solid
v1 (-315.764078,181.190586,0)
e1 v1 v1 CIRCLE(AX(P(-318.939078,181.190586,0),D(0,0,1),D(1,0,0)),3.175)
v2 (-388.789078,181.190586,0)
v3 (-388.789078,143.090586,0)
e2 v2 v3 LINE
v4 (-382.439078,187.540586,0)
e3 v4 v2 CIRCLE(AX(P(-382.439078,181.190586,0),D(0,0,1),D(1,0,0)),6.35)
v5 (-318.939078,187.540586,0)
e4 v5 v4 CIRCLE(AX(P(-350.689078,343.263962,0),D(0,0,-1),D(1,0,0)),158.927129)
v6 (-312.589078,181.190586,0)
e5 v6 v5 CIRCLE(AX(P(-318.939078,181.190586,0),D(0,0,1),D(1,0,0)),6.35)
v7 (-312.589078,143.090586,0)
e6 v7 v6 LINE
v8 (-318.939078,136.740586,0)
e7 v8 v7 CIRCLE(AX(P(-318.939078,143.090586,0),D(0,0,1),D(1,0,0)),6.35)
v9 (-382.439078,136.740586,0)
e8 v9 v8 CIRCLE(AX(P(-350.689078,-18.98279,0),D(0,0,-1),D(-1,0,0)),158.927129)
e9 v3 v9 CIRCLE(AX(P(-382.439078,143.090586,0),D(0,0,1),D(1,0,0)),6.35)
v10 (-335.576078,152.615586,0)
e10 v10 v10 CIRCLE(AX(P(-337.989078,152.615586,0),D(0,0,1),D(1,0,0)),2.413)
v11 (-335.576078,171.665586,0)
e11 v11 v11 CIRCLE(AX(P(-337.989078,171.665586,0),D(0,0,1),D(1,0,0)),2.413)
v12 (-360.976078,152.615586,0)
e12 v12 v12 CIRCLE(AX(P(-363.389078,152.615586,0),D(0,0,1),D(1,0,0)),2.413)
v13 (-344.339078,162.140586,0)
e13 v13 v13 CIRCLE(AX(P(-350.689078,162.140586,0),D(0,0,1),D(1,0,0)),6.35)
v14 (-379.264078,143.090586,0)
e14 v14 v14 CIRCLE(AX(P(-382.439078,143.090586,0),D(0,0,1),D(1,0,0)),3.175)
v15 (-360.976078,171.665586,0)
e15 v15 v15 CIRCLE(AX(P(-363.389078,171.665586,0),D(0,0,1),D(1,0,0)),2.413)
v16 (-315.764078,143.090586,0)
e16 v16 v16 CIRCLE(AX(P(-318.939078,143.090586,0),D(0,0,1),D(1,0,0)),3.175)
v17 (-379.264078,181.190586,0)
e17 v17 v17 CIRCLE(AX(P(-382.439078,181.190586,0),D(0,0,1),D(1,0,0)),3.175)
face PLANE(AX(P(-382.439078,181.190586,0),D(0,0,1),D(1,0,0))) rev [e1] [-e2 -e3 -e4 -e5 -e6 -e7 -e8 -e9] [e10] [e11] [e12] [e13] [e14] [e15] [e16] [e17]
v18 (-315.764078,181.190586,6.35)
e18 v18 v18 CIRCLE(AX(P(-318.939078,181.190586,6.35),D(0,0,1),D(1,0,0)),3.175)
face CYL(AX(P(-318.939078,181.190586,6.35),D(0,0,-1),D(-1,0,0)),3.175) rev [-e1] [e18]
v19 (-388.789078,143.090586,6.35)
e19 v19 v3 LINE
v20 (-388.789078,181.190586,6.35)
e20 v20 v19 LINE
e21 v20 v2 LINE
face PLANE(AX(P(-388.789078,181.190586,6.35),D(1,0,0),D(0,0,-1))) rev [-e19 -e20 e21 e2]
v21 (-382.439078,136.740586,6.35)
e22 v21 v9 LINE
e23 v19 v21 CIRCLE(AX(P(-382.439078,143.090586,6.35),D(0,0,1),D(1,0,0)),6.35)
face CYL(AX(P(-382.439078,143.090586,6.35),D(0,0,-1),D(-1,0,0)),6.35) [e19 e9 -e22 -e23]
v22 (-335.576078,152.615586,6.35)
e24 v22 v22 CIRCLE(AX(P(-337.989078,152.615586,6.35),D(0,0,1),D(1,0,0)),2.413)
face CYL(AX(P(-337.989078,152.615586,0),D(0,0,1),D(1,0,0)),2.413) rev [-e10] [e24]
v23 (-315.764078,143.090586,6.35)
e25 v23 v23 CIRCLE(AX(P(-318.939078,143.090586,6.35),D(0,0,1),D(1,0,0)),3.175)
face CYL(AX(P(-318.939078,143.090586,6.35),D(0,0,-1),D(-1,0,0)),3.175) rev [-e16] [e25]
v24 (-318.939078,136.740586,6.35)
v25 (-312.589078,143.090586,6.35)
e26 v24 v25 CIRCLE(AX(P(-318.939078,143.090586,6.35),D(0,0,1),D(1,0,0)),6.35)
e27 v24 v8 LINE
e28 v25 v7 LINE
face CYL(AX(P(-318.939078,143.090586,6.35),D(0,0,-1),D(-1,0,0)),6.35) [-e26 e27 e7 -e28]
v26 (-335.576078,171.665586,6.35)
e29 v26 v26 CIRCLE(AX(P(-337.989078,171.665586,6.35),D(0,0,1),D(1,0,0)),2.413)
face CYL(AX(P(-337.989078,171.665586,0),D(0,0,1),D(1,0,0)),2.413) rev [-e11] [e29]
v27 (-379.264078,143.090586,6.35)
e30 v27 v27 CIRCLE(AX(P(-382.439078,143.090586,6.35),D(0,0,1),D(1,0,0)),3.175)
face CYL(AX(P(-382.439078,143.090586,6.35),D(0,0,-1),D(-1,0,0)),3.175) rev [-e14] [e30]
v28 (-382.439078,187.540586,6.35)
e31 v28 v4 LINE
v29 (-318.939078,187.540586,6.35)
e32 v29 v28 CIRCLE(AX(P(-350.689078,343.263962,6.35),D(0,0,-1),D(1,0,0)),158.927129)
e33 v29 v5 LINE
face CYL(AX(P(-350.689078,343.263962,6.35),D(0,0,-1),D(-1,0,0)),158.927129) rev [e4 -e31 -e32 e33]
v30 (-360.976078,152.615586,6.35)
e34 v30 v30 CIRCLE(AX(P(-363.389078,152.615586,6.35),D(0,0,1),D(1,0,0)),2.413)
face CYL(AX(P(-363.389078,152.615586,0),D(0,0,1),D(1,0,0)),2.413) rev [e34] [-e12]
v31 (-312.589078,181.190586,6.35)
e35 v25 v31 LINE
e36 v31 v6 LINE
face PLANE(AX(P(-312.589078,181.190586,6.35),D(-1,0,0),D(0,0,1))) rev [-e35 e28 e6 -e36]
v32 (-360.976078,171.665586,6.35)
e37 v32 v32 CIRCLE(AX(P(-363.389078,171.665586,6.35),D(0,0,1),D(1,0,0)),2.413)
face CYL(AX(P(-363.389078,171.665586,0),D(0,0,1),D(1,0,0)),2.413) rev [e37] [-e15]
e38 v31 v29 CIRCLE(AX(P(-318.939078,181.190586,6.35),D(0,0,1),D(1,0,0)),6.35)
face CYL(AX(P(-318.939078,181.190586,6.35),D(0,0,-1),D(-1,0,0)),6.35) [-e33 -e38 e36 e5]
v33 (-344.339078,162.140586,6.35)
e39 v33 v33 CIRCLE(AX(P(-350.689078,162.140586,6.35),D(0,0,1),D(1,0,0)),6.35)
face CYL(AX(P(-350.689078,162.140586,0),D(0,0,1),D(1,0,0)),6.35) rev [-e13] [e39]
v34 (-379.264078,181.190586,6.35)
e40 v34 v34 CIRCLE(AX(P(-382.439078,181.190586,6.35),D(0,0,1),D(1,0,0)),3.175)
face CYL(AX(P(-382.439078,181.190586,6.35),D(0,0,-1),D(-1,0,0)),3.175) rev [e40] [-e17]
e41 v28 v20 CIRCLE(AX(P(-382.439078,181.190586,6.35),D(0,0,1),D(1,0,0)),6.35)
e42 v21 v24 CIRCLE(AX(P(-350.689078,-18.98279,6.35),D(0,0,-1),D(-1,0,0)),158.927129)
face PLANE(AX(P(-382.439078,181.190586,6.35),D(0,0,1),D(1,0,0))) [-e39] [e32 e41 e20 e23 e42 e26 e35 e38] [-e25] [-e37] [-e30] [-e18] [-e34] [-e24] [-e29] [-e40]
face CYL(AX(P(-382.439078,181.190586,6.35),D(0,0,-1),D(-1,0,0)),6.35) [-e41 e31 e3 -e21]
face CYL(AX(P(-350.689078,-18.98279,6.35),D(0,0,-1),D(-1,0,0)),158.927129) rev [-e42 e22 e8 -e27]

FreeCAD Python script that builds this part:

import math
import FreeCAD as App
import Part
import Sketcher
Q = App.Units.Quantity

doc = App.newDocument("Part")
body = doc.addObject("PartDesign::Body", "Body")

# Sketch on XY plane
sketch1 = body.newObject("Sketcher::SketchObject", "Sketch")
sketch1.AttachmentSupport = (doc.getObject("XY_Plane"), [""])
sketch1.MapMode = "FlatFace"
sketch1.addGeometry([
    Part.LineSegment(App.Vector(-388.8, 181.2, 0), App.Vector(-388.8, 143.1, 0)),  # 0
    Part.ArcOfCircle(Part.Circle(App.Vector(-382.4, 143.1, 0), App.Vector(0, 0, 1), 6.3), math.radians(180), math.radians(270)),  # 1
    Part.ArcOfCircle(Part.Circle(App.Vector(-350.7, -19, 0), App.Vector(0, 0, 1), 158.9), math.radians(78), math.radians(102)),  # 2
    Part.ArcOfCircle(Part.Circle(App.Vector(-318.9, 143.1, 0), App.Vector(0, 0, 1), 6.3), math.radians(-90), math.radians(0)),  # 3
    Part.LineSegment(App.Vector(-312.6, 143.1, 0), App.Vector(-312.6, 181.2, 0)),  # 4
    Part.ArcOfCircle(Part.Circle(App.Vector(-318.9, 181.2, 0), App.Vector(0, 0, 1), 6.3), math.radians(0), math.radians(90)),  # 5
    Part.ArcOfCircle(Part.Circle(App.Vector(-350.7, 343.3, 0), App.Vector(0, 0, 1), 158.9), math.radians(-102), math.radians(-78)),  # 6
    Part.ArcOfCircle(Part.Circle(App.Vector(-382.4, 181.2, 0), App.Vector(0, 0, 1), 6.4), math.radians(90), math.radians(180)),  # 7
    Part.Circle(App.Vector(-382.4, 143.1, 0), App.Vector(0, 0, 1), 3.2),  # 8
    Part.Circle(App.Vector(-318.9, 143.1, 0), App.Vector(0, 0, 1), 3.2),  # 9
    Part.Circle(App.Vector(-382.4, 181.2, 0), App.Vector(0, 0, 1), 3.2),  # 10
    Part.Circle(App.Vector(-318.9, 181.2, 0), App.Vector(0, 0, 1), 3.2),  # 11
], False)
sketch1.addConstraint([
    Sketcher.Constraint("Tangent", 0, 2, 1, 1),
    Sketcher.Constraint("Coincident", 1, 2, 2, 2),
    Sketcher.Constraint("Coincident", 2, 1, 3, 1),
    Sketcher.Constraint("Tangent", 3, 2, 4, 1),
    Sketcher.Constraint("Tangent", 4, 2, 5, 1),
    Sketcher.Constraint("Coincident", 5, 2, 6, 2),
    Sketcher.Constraint("Coincident", 6, 1, 7, 1),
    Sketcher.Constraint("Tangent", 7, 2, 0, 1),
    Sketcher.Constraint("Vertical", 0),
    Sketcher.Constraint("Vertical", 4),
    Sketcher.Constraint("Coincident", 8, 3, 1, 3),
    Sketcher.Constraint("Coincident", 9, 3, 3, 3),
    Sketcher.Constraint("Coincident", 10, 3, 7, 3),
    Sketcher.Constraint("Coincident", 11, 3, 5, 3),
    Sketcher.Constraint("Equal", 1, 3),
    Sketcher.Constraint("Equal", 3, 5),
    Sketcher.Constraint("Equal", 2, 6),
    Sketcher.Constraint("Equal", 5, 7),
    Sketcher.Constraint("Equal", 8, 9),
    Sketcher.Constraint("Equal", 9, 10),
    Sketcher.Constraint("Equal", 10, 11),
    Sketcher.Constraint("Horizontal", 1, 3, 3, 3),
    Sketcher.Constraint("Horizontal", 5, 3, 7, 3),
    Sketcher.Constraint("Vertical", 2, 3, 6, 3),
    Sketcher.Constraint("Vertical", 10, 3, 1, 2),
    Sketcher.Constraint("Vertical", 11, 3, 2, 1),
    Sketcher.Constraint("Vertical", 2, 1, 5, 2),
    Sketcher.Constraint("Diameter", 8, Q("0.25 in")),
    Sketcher.Constraint("Radius", 1, Q("0.25 in")),
    Sketcher.Constraint("DistanceY", 0, 2, 0, 1, Q("1.5 in")),
    Sketcher.Constraint("DistanceX", 1, 3, 3, 3, Q("2.5 in")),
    Sketcher.Constraint("Radius", 2, 158.927129),
    Sketcher.Constraint("DistanceY", 2, 3, -1, 1, 18.98279),
    Sketcher.Constraint("DistanceX", 1, 3, -1, 1, 382.439078),
])
pad1 = body.newObject("PartDesign::Pad", "Pad")
pad1.Profile = sketch1
pad1.Length = Q("0.25 in")

# Sketch on XY plane
sketch2 = body.newObject("Sketcher::SketchObject", "Sketch001")
sketch2.AttachmentSupport = (doc.getObject("XY_Plane"), [""])
sketch2.MapMode = "FlatFace"
sketch2.AttachmentOffset = App.Placement(App.Vector(0, 0, 0.25 * 25.4), App.Rotation())
sketch2.addGeometry(Part.Circle(App.Vector(-351, 162, 0), App.Vector(0, 0, 1), 6), False)
sketch2.addConstraint([
    Sketcher.Constraint("Diameter", 0, Q("0.5 in")),
    Sketcher.Constraint("DistanceX", 0, 3, -1, 1, 350.689078),
    Sketcher.Constraint("DistanceY", -1, 1, 0, 3, 162.140586),
])
pocket1 = body.newObject("PartDesign::Pocket", "Pocket")
pocket1.Profile = sketch2
pocket1.Length = Q("0.25 in")

# Sketch on XY plane
sketch3 = body.newObject("Sketcher::SketchObject", "Sketch002")
sketch3.AttachmentSupport = (doc.getObject("XY_Plane"), [""])
sketch3.MapMode = "FlatFace"
sketch3.AttachmentOffset = App.Placement(App.Vector(0, 0, 0.25 * 25.4), App.Rotation())
sketch3.addGeometry([
    Part.Circle(App.Vector(-338, 171.7, 0), App.Vector(0, 0, 1), 2.4),
    Part.Circle(App.Vector(-338, 152.6, 0), App.Vector(0, 0, 1), 2.4),
    Part.Circle(App.Vector(-363.4, 152.6, 0), App.Vector(0, 0, 1), 2.4),
    Part.Circle(App.Vector(-363.4, 171.7, 0), App.Vector(0, 0, 1), 2.4),
], False)
sketch3.addConstraint([
    Sketcher.Constraint("Equal", 0, 1),
    Sketcher.Constraint("Equal", 1, 2),
    Sketcher.Constraint("Equal", 2, 3),
    Sketcher.Constraint("Horizontal", 1, 3, 2, 3),
    Sketcher.Constraint("Horizontal", 0, 3, 3, 3),
    Sketcher.Constraint("Vertical", 0, 3, 1, 3),
    Sketcher.Constraint("Vertical", 2, 3, 3, 3),
    Sketcher.Constraint("Diameter", 0, Q("0.19 in")),
    Sketcher.Constraint("DistanceX", 2, 3, 1, 3, Q("1 in")),
    Sketcher.Constraint("DistanceY", 1, 3, 0, 3, Q("0.75 in")),
    Sketcher.Constraint("DistanceX", 0, 3, -1, 1, 337.989078),
    Sketcher.Constraint("DistanceY", -1, 1, 0, 3, 171.665586),
])
pocket2 = body.newObject("PartDesign::Pocket", "Pocket001")
pocket2.Profile = sketch3
pocket2.Length = Q("0.25 in")

doc.recompute()
